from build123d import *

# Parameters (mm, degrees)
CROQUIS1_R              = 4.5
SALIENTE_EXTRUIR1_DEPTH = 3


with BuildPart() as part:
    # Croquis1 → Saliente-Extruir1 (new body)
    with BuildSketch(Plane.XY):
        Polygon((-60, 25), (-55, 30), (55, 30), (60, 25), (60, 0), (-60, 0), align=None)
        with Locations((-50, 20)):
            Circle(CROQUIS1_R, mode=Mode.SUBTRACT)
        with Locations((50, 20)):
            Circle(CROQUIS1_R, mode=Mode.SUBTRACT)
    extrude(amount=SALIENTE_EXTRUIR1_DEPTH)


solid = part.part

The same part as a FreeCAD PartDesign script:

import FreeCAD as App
import Part
import Sketcher
Q = App.Units.Quantity

doc = App.newDocument("Part")
params = doc.addObject("Spreadsheet::Sheet", "Params")
for row, (alias, value) in enumerate([
    ("sketch1_diameter", "9 mm"),
    ("sketch1_width", "120 mm"),
    ("sketch1_width2", "110 mm"),
    ("sketch1_height", "25 mm"),
    ("pad1_length", "3 mm"),
], start=1):
    params.set(f"A{row}", alias)
    params.set(f"B{row}", "=" + value)
    params.setAlias(f"B{row}", alias)

body = doc.addObject("PartDesign::Body", "Body")

sketch1 = body.newObject("Sketcher::SketchObject", "Sketch")
sketch1.AttachmentSupport = (doc.getObject("XY_Plane"), [""])
sketch1.MapMode = "FlatFace"
sketch1.addGeometry(Part.LineSegment(App.Vector(-55, 30, 0), App.Vector(-60, 25, 0)), False)
sketch1.addGeometry(Part.LineSegment(App.Vector(-60, 25, 0), App.Vector(-60, 0, 0)), False)
sketch1.addGeometry(Part.LineSegment(App.Vector(-60, 0, 0), App.Vector(60, 0, 0)), False)
sketch1.addGeometry(Part.LineSegment(App.Vector(60, 0, 0), App.Vector(60, 25, 0)), False)
sketch1.addGeometry(Part.LineSegment(App.Vector(60, 25, 0), App.Vector(55, 30, 0)), False)
sketch1.addGeometry(Part.LineSegment(App.Vector(55, 30, 0), App.Vector(-55, 30, 0)), False)
sketch1.addGeometry(Part.Circle(App.Vector(50, 20, 0), App.Vector(0, 0, 1), 4.5), False)
sketch1.addGeometry(Part.Circle(App.Vector(-50, 20, 0), App.Vector(0, 0, 1), 4.5), False)
sketch1.addConstraint(Sketcher.Constraint("Coincident", 0, 2, 1, 1))
sketch1.addConstraint(Sketcher.Constraint("Coincident", 1, 2, 2, 1))
sketch1.addConstraint(Sketcher.Constraint("Coincident", 2, 2, 3, 1))
sketch1.addConstraint(Sketcher.Constraint("Coincident", 3, 2, 4, 1))
sketch1.addConstraint(Sketcher.Constraint("Coincident", 4, 2, 5, 1))
sketch1.addConstraint(Sketcher.Constraint("Coincident", 5, 2, 0, 1))
sketch1.addConstraint(Sketcher.Constraint("Vertical", 1))
sketch1.addConstraint(Sketcher.Constraint("Horizontal", 2))
sketch1.addConstraint(Sketcher.Constraint("Vertical", 3))
sketch1.addConstraint(Sketcher.Constraint("Horizontal", 5))
sketch1.addConstraint(Sketcher.Constraint("Equal", 6, 7))
sketch1.addConstraint(Sketcher.Constraint("Symmetric", 1, 2, 2, 2, -1, 1))
sketch1.addConstraint(Sketcher.Constraint("Symmetric", 6, 3, 7, 3, -2))
sketch1.addConstraint(Sketcher.Constraint("Perpendicular", 0, 4))
sketch1.addConstraint(Sketcher.Constraint("Horizontal", 0, 2, 3, 2))
sketch1.addConstraint(Sketcher.Constraint("Equal", 0, 4))
sketch1.addConstraint(Sketcher.Constraint("Diameter", 6, Q("9 mm")))
sketch1.addConstraint(Sketcher.Constraint("DistanceX", 2, 1, 2, 2, Q("120 mm")))
sketch1.addConstraint(Sketcher.Constraint("DistanceX", 5, 2, 5, 1, Q("110 mm")))
sketch1.addConstraint(Sketcher.Constraint("DistanceY", 1, 2, 1, 1, Q("25 mm")))
sketch1.addConstraint(Sketcher.Constraint("DistanceX", -1, 1, 6, 3, Q("50 mm")))
sketch1.addConstraint(Sketcher.Constraint("DistanceY", -1, 1, 6, 3, Q("20 mm")))
sketch1.setExpression("Constraints[16]", "Params.sketch1_diameter")
sketch1.setExpression("Constraints[17]", "Params.sketch1_width")
sketch1.setExpression("Constraints[18]", "Params.sketch1_width2")
sketch1.setExpression("Constraints[19]", "Params.sketch1_height")
pad1 = body.newObject("PartDesign::Pad", "Pad")
pad1.Profile = sketch1
pad1.setExpression("Length", "Params.pad1_length")

doc.recompute()
